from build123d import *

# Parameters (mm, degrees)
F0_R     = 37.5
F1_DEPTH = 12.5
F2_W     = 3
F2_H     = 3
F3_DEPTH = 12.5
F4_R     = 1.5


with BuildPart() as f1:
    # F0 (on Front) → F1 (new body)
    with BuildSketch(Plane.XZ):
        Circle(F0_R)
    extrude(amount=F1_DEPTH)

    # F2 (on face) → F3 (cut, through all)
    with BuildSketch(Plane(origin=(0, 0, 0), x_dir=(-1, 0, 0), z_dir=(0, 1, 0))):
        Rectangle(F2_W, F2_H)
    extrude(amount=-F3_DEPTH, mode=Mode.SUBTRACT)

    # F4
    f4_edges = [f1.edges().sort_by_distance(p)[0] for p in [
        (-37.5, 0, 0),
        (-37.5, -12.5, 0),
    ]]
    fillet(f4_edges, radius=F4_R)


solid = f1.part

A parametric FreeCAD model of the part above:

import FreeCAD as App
import Part
import Sketcher

V = App.Vector


def edges_at(feature, points):
    """Names of the edges that pass closest to the given points."""
    edges = feature.Shape.Edges
    near = lambda p: min(range(len(edges)), key=lambda i: edges[i].distToShape(Part.Vertex(*p))[0])
    return sorted({f"Edge{near(p) + 1}" for p in points})

doc = App.newDocument("Part")
body = doc.addObject("PartDesign::Body", "Body")

# Sketch on XZ plane
sketch1 = body.newObject("Sketcher::SketchObject", "Sketch")
sketch1.AttachmentSupport = (doc.getObject("XZ_Plane"), [""])
sketch1.MapMode = "FlatFace"
sketch1.addGeometry(Part.Circle(V(0, 0, 0), V(0, 0, 1), 38), False)
sketch1.addConstraint([
    Sketcher.Constraint("Coincident", 0, 3, -1, 1),
    Sketcher.Constraint("Diameter", 0, 75.0),
])
pad1 = body.newObject("PartDesign::Pad", "Pad")
pad1.Profile = sketch1
pad1.Length = 12.5

# Sketch on XZ plane
sketch2 = body.newObject("Sketcher::SketchObject", "Sketch001")
sketch2.AttachmentSupport = (doc.getObject("XZ_Plane"), [""])
sketch2.MapMode = "FlatFace"
sketch2.addGeometry([
    Part.LineSegment(V(1.5, 1.5, 0), V(1.5, -1.5, 0)),
    Part.LineSegment(V(1.5, -1.5, 0), V(-1.5, -1.5, 0)),
    Part.LineSegment(V(-1.5, -1.5, 0), V(-1.5, 1.5, 0)),
    Part.LineSegment(V(-1.5, 1.5, 0), V(1.5, 1.5, 0)),
], False)
sketch2.addConstraint([
    Sketcher.Constraint("Coincident", 0, 2, 1, 1),
    Sketcher.Constraint("Coincident", 1, 2, 2, 1),
    Sketcher.Constraint("Coincident", 2, 2, 3, 1),
    Sketcher.Constraint("Coincident", 3, 2, 0, 1),
    Sketcher.Constraint("Vertical", 0),
    Sketcher.Constraint("Horizontal", 1),
    Sketcher.Constraint("Vertical", 2),
    Sketcher.Constraint("Horizontal", 3),
    Sketcher.Constraint("Symmetric", 0, 2, 2, 2, -1, 1),
    Sketcher.Constraint("Equal", 3, 0),
    Sketcher.Constraint("DistanceX", 1, 2, 1, 1, 3.0),
])
pocket1 = body.newObject("PartDesign::Pocket", "Pocket")
pocket1.Profile = sketch2
pocket1.Type = "ThroughAll"
pocket1.Reversed = True
doc.recompute()

fillet = body.newObject("PartDesign::Fillet", "Fillet")
fillet.Base = (pocket1, edges_at(pocket1, [(-37.5, 0, 0), (-37.5, -12.5, 0)]))
fillet.Radius = 1.5

doc.recompute()
